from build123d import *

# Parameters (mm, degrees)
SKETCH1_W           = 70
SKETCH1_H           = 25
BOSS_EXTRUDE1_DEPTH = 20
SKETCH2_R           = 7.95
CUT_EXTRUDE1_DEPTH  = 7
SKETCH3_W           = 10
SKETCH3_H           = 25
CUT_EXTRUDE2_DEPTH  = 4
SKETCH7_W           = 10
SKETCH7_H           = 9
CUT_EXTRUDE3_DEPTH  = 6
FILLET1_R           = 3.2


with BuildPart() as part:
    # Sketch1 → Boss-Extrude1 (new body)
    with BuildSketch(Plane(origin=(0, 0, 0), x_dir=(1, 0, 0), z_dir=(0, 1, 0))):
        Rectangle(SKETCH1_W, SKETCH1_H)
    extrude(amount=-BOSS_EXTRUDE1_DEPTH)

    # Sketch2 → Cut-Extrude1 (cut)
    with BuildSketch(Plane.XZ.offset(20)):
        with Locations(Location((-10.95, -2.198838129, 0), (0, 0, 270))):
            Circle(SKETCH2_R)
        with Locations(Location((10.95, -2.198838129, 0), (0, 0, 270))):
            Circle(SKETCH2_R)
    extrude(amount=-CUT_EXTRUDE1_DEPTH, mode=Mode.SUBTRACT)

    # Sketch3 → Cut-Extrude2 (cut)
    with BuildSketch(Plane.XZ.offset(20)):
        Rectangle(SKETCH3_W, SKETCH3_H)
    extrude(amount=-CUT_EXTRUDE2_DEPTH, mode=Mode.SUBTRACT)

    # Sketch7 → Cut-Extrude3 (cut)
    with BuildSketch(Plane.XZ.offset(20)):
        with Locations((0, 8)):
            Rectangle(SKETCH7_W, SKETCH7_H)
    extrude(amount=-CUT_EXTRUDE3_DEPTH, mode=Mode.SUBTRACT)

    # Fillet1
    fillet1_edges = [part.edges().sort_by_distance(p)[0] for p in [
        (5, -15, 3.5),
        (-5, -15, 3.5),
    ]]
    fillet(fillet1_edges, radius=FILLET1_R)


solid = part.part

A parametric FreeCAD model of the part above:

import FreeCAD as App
import Part
import Sketcher
from FreeCAD import Vector
Q = App.Units.Quantity


def edges_at(feature, points):
    """Names of the edges that pass closest to the given points."""
    edges = feature.Shape.Edges
    near = lambda p: min(range(len(edges)), key=lambda i: edges[i].distToShape(Part.Vertex(*p))[0])
    return sorted({f"Edge{near(p) + 1}" for p in points})

doc = App.newDocument("Part")
body = doc.addObject("PartDesign::Body", "Body")

# Sketch on XZ plane
sketch1 = body.newObject("Sketcher::SketchObject", "Sketch")
sketch1.AttachmentSupport = (doc.getObject("XZ_Plane"), [""])
sketch1.MapMode = "FlatFace"
sketch1.addGeometry([
    Part.LineSegment(Vector(-35, -12.5, 0), Vector(-35, 12.5, 0)),
    Part.LineSegment(Vector(-35, 12.5, 0), Vector(35, 12.5, 0)),
    Part.LineSegment(Vector(35, 12.5, 0), Vector(35, -12.5, 0)),
    Part.LineSegment(Vector(35, -12.5, 0), Vector(-35, -12.5, 0)),
], False)
sketch1.addConstraint([
    Sketcher.Constraint("Coincident", 0, 2, 1, 1),
    Sketcher.Constraint("Coincident", 1, 2, 2, 1),
    Sketcher.Constraint("Coincident", 2, 2, 3, 1),
    Sketcher.Constraint("Coincident", 3, 2, 0, 1),
    Sketcher.Constraint("Vertical", 0),
    Sketcher.Constraint("Horizontal", 1),
    Sketcher.Constraint("Vertical", 2),
    Sketcher.Constraint("Horizontal", 3),
    Sketcher.Constraint("Symmetric", 0, 2, 2, 2, -1, 1),
    Sketcher.Constraint("DistanceX", 1, 1, 1, 2, Q("70 mm")),
    Sketcher.Constraint("DistanceY", 0, 1, 0, 2, Q("25 mm")),
])
pad1 = body.newObject("PartDesign::Pad", "Pad")
pad1.Profile = sketch1
pad1.Length = 20

# Sketch on XZ plane
sketch2 = body.newObject("Sketcher::SketchObject", "Sketch001")
sketch2.AttachmentSupport = (doc.getObject("XZ_Plane"), [""])
sketch2.MapMode = "FlatFace"
sketch2.AttachmentOffset = App.Placement(Vector(0, 0, 20), App.Rotation())
sketch2.addGeometry([
    Part.Circle(Vector(-10.95, -2.198838, 0), Vector(0, 0, 1), 7.95),
    Part.Circle(Vector(10.95, -2.198838, 0), Vector(0, 0, 1), 7.95),
], False)
sketch2.addConstraint([
    Sketcher.Constraint("Equal", 0, 1),
    Sketcher.Constraint("Symmetric", 0, 3, 1, 3, -2),
    Sketcher.Constraint("Diameter", 0, Q("15.9 mm")),
    Sketcher.Constraint("DistanceX", 0, 3, 1, 3, Q("21.9 mm")),
    Sketcher.Constraint("DistanceY", 0, 3, -1, 1, Q("2.198838 mm")),
])
pocket1 = body.newObject("PartDesign::Pocket", "Pocket")
pocket1.Profile = sketch2
pocket1.Length = 7

# Sketch on XZ plane
sketch3 = body.newObject("Sketcher::SketchObject", "Sketch002")
sketch3.AttachmentSupport = (doc.getObject("XZ_Plane"), [""])
sketch3.MapMode = "FlatFace"
sketch3.AttachmentOffset = App.Placement(Vector(0, 0, 20), App.Rotation())
sketch3.addGeometry([
    Part.LineSegment(Vector(-5, 12.5, 0), Vector(-5, -12.5, 0)),
    Part.LineSegment(Vector(-5, -12.5, 0), Vector(5, -12.5, 0)),
    Part.LineSegment(Vector(5, -12.5, 0), Vector(5, 12.5, 0)),
    Part.LineSegment(Vector(5, 12.5, 0), Vector(-5, 12.5, 0)),
], False)
sketch3.addConstraint([
    Sketcher.Constraint("Coincident", 0, 2, 1, 1),
    Sketcher.Constraint("Coincident", 1, 2, 2, 1),
    Sketcher.Constraint("Coincident", 2, 2, 3, 1),
    Sketcher.Constraint("Coincident", 3, 2, 0, 1),
    Sketcher.Constraint("Vertical", 0),
    Sketcher.Constraint("Horizontal", 1),
    Sketcher.Constraint("Vertical", 2),
    Sketcher.Constraint("Horizontal", 3),
    Sketcher.Constraint("Symmetric", 0, 2, 2, 2, -1, 1),
    Sketcher.Constraint("DistanceX", 1, 1, 1, 2, Q("10 mm")),
    Sketcher.Constraint("DistanceY", 0, 2, 0, 1, Q("25 mm")),
])
pocket2 = body.newObject("PartDesign::Pocket", "Pocket001")
pocket2.Profile = sketch3
pocket2.Length = 4

# Sketch on XZ plane
sketch4 = body.newObject("Sketcher::SketchObject", "Sketch003")
sketch4.AttachmentSupport = (doc.getObject("XZ_Plane"), [""])
sketch4.MapMode = "FlatFace"
sketch4.AttachmentOffset = App.Placement(Vector(0, 0, 20), App.Rotation())
sketch4.addGeometry([
    Part.LineSegment(Vector(-5, 12.5, 0), Vector(-5, 3.5, 0)),
    Part.LineSegment(Vector(-5, 3.5, 0), Vector(5, 3.5, 0)),
    Part.LineSegment(Vector(5, 3.5, 0), Vector(5, 12.5, 0)),
    Part.LineSegment(Vector(5, 12.5, 0), Vector(-5, 12.5, 0)),
], False)
sketch4.addConstraint([
    Sketcher.Constraint("Coincident", 0, 2, 1, 1),
    Sketcher.Constraint("Coincident", 1, 2, 2, 1),
    Sketcher.Constraint("Coincident", 2, 2, 3, 1),
    Sketcher.Constraint("Coincident", 3, 2, 0, 1),
    Sketcher.Constraint("Vertical", 0),
    Sketcher.Constraint("Horizontal", 1),
    Sketcher.Constraint("Vertical", 2),
    Sketcher.Constraint("Horizontal", 3),
    Sketcher.Constraint("DistanceX", 1, 1, 1, 2, Q("10 mm")),
    Sketcher.Constraint("DistanceY", 0, 2, 0, 1, Q("9 mm")),
    Sketcher.Constraint("DistanceX", 0, 2, -1, 1, Q("5 mm")),
    Sketcher.Constraint("DistanceY", -1, 1, 0, 2, Q("3.5 mm")),
])
pocket3 = body.newObject("PartDesign::Pocket", "Pocket002")
pocket3.Profile = sketch4
pocket3.Length = 6
doc.recompute()

fillet = body.newObject("PartDesign::Fillet", "Fillet")
fillet.Base = (pocket3, edges_at(pocket3, [(5, -15, 3.5), (-5, -15, 3.5)]))
fillet.Radius = 3.2

doc.recompute()
